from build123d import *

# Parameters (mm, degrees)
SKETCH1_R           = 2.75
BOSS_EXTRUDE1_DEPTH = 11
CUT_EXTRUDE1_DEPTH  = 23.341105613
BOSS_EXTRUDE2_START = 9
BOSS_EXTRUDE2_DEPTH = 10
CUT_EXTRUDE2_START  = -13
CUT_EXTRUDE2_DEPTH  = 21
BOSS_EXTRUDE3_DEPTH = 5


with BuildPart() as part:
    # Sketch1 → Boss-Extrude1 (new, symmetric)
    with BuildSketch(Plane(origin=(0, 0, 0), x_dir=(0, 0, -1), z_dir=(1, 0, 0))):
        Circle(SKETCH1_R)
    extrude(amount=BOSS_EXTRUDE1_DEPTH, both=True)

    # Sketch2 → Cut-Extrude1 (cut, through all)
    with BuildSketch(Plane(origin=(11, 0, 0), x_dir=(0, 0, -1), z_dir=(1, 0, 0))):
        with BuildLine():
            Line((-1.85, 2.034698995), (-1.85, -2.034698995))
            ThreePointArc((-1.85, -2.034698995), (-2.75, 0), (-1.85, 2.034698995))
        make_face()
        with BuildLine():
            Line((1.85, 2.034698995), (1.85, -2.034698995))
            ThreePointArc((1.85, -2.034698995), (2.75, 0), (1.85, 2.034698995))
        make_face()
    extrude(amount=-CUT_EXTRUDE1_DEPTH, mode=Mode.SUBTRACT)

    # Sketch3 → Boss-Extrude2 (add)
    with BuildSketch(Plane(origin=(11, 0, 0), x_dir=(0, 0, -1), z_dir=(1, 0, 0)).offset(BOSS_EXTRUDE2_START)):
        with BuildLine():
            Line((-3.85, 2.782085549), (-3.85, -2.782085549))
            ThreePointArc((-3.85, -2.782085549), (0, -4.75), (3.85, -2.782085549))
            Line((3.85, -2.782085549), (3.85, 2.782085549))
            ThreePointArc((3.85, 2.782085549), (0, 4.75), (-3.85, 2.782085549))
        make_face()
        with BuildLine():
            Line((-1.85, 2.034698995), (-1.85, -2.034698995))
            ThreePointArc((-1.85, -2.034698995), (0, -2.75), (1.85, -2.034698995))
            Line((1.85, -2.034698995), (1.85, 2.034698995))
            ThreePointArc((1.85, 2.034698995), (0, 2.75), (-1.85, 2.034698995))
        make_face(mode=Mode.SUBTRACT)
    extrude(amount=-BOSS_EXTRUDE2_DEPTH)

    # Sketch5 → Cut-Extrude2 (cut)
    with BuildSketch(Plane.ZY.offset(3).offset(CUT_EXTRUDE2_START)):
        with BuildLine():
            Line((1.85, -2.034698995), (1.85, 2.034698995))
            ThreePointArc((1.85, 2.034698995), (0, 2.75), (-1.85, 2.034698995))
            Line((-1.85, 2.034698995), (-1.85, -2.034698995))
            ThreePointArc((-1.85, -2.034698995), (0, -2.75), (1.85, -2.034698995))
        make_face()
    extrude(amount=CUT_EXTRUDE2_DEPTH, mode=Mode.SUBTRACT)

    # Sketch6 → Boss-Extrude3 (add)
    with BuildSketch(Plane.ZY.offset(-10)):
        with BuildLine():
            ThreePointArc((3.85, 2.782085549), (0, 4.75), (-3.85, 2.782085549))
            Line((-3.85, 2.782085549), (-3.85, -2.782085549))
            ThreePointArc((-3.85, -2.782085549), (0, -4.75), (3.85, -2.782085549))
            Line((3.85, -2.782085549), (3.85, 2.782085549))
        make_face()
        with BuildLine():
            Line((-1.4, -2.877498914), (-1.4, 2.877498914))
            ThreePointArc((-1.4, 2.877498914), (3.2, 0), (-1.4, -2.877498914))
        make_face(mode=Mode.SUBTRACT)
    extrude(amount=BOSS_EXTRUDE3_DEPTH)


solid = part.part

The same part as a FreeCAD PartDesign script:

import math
import FreeCAD as App
import Part
import Sketcher
from FreeCAD import Vector

doc = App.newDocument("Part")
body = doc.addObject("PartDesign::Body", "Body")

# Sketch on YZ plane
sketch1 = body.newObject("Sketcher::SketchObject", "Sketch")
sketch1.AttachmentSupport = (doc.getObject("YZ_Plane"), [""])
sketch1.MapMode = "FlatFace"
sketch1.addGeometry(Part.Circle(Vector(0, 0, 0), Vector(0, 0, 1), 2.8), False)
sketch1.addConstraint([
    Sketcher.Constraint("Coincident", 0, 3, -1, 1),
    Sketcher.Constraint("Diameter", 0, 5.5),
])
pad1 = body.newObject("PartDesign::Pad", "Pad")
pad1.Profile = sketch1
pad1.Length = 22
pad1.Midplane = True

# Sketch on YZ plane
sketch2 = body.newObject("Sketcher::SketchObject", "Sketch001")
sketch2.AttachmentSupport = (doc.getObject("YZ_Plane"), [""])
sketch2.MapMode = "FlatFace"
sketch2.AttachmentOffset = App.Placement(Vector(0, 0, 11), App.Rotation())
sketch2.addGeometry([
    Part.LineSegment(Vector(-2, 1.9, 0), Vector(2, 1.9, 0)),
    Part.ArcOfCircle(Part.Circle(Vector(0, 0, 0), Vector(0, 0, 1), 2.8), math.radians(42), math.radians(138)),
    Part.LineSegment(Vector(2, -1.9, 0), Vector(-2, -1.9, 0)),
    Part.ArcOfCircle(Part.Circle(Vector(0, 0, 0), Vector(0, 0, 1), 2.8), math.radians(-138), math.radians(-42)),
], False)
sketch2.addConstraint([
    Sketcher.Constraint("Coincident", 0, 1, 1, 2),
    Sketcher.Constraint("Coincident", 1, 1, 0, 2),
    Sketcher.Constraint("Coincident", 2, 1, 3, 2),
    Sketcher.Constraint("Coincident", 3, 1, 2, 2),
    Sketcher.Constraint("Horizontal", 0),
    Sketcher.Constraint("Horizontal", 2),
    Sketcher.Constraint("Coincident", 1, 3, -1, 1),
    Sketcher.Constraint("Coincident", 3, 3, -1, 1),
    Sketcher.Constraint("Equal", 1, 3),
    Sketcher.Constraint("Vertical", 1, 1, 2, 1),
    Sketcher.Constraint("Radius", 1, 2.75),
    Sketcher.Constraint("DistanceY", 2, 1, 1, 1, 3.7),
])
pocket1 = body.newObject("PartDesign::Pocket", "Pocket")
pocket1.Profile = sketch2
pocket1.Type = "ThroughAll"

# Sketch on YZ plane
sketch3 = body.newObject("Sketcher::SketchObject", "Sketch002")
sketch3.AttachmentSupport = (doc.getObject("YZ_Plane"), [""])
sketch3.MapMode = "FlatFace"
sketch3.AttachmentOffset = App.Placement(Vector(0, 0, 20), App.Rotation())
sketch3.addGeometry([
    Part.LineSegment(Vector(2.8, 3.9, 0), Vector(-2.8, 3.9, 0)),  # 0
    Part.ArcOfCircle(Part.Circle(Vector(0, 0, 0), Vector(0, 0, 1), 4.8), math.radians(126), math.radians(234)),  # 1
    Part.LineSegment(Vector(-2.8, -3.9, 0), Vector(2.8, -3.9, 0)),  # 2
    Part.ArcOfCircle(Part.Circle(Vector(0, 0, 0), Vector(0, 0, 1), 4.8), math.radians(-54), math.radians(54)),  # 3
    Part.LineSegment(Vector(-2, 1.9, 0), Vector(2, 1.9, 0)),  # 4
    Part.ArcOfCircle(Part.Circle(Vector(0, 0, 0), Vector(0, 0, 1), 2.8), math.radians(-42), math.radians(42)),  # 5
    Part.LineSegment(Vector(2, -1.9, 0), Vector(-2, -1.9, 0)),  # 6
    Part.ArcOfCircle(Part.Circle(Vector(0, 0, 0), Vector(0, 0, 1), 2.8), math.radians(138), math.radians(222)),  # 7
], False)
sketch3.addConstraint([
    Sketcher.Constraint("Coincident", 0, 2, 1, 1),
    Sketcher.Constraint("Coincident", 1, 2, 2, 1),
    Sketcher.Constraint("Coincident", 2, 2, 3, 1),
    Sketcher.Constraint("Coincident", 3, 2, 0, 1),
    Sketcher.Constraint("Coincident", 4, 2, 5, 2),
    Sketcher.Constraint("Coincident", 5, 1, 6, 1),
    Sketcher.Constraint("Coincident", 6, 2, 7, 2),
    Sketcher.Constraint("Coincident", 7, 1, 4, 1),
    Sketcher.Constraint("Horizontal", 0),
    Sketcher.Constraint("Horizontal", 2),
    Sketcher.Constraint("Horizontal", 4),
    Sketcher.Constraint("Horizontal", 6),
    Sketcher.Constraint("Coincident", 1, 3, -1, 1),
    Sketcher.Constraint("Coincident", 3, 3, -1, 1),
    Sketcher.Constraint("Coincident", 5, 3, -1, 1),
    Sketcher.Constraint("Coincident", 7, 3, -1, 1),
    Sketcher.Constraint("Equal", 1, 3),
    Sketcher.Constraint("Equal", 5, 7),
    Sketcher.Constraint("Vertical", 0, 2, 1, 2),
    Sketcher.Constraint("Vertical", 4, 2, 5, 1),
    Sketcher.Constraint("Radius", 1, 4.75),
    Sketcher.Constraint("Radius", 5, 2.75),
    Sketcher.Constraint("DistanceY", 4, 2, 3, 2, 2.0),
    Sketcher.Constraint("DistanceY", 1, 2, 0, 2, 7.7),
])
pad2 = body.newObject("PartDesign::Pad", "Pad001")
pad2.Profile = sketch3
pad2.Length = 10
pad2.Reversed = True

# Sketch on YZ plane
sketch4 = body.newObject("Sketcher::SketchObject", "Sketch003")
sketch4.AttachmentSupport = (doc.getObject("YZ_Plane"), [""])
sketch4.MapMode = "FlatFace"
sketch4.AttachmentOffset = App.Placement(Vector(0, 0, 10), App.Rotation())
sketch4.addGeometry([
    Part.LineSegment(Vector(-2, 1.9, 0), Vector(2, 1.9, 0)),
    Part.ArcOfCircle(Part.Circle(Vector(0, 0, 0), Vector(0, 0, 1), 2.8), math.radians(-42), math.radians(42)),
    Part.LineSegment(Vector(2, -1.9, 0), Vector(-2, -1.9, 0)),
    Part.ArcOfCircle(Part.Circle(Vector(0, 0, 0), Vector(0, 0, 1), 2.8), math.radians(138), math.radians(222)),
], False)
sketch4.addConstraint([
    Sketcher.Constraint("Coincident", 0, 2, 1, 2),
    Sketcher.Constraint("Coincident", 1, 1, 2, 1),
    Sketcher.Constraint("Coincident", 2, 2, 3, 2),
    Sketcher.Constraint("Coincident", 3, 1, 0, 1),
    Sketcher.Constraint("Horizontal", 0),
    Sketcher.Constraint("Horizontal", 2),
    Sketcher.Constraint("Coincident", 1, 3, -1, 1),
    Sketcher.Constraint("Coincident", 3, 3, -1, 1),
    Sketcher.Constraint("Equal", 1, 3),
    Sketcher.Constraint("Vertical", 0, 2, 1, 1),
    Sketcher.Constraint("Radius", 1, 2.75),
    Sketcher.Constraint("DistanceY", 1, 1, 0, 2, 3.7),
])
pocket2 = body.newObject("PartDesign::Pocket", "Pocket001")
pocket2.Profile = sketch4
pocket2.Length = 21

# Sketch on YZ plane
sketch5 = body.newObject("Sketcher::SketchObject", "Sketch004")
sketch5.AttachmentSupport = (doc.getObject("YZ_Plane"), [""])
sketch5.MapMode = "FlatFace"
sketch5.AttachmentOffset = App.Placement(Vector(0, 0, 10), App.Rotation())
sketch5.addGeometry([
    Part.ArcOfCircle(Part.Circle(Vector(0, 0, 0), Vector(0, 0, 1), 4.8), math.radians(-54), math.radians(54)),  # 0
    Part.LineSegment(Vector(2.8, -3.9, 0), Vector(-2.8, -3.9, 0)),  # 1
    Part.ArcOfCircle(Part.Circle(Vector(0, 0, 0), Vector(0, 0, 1), 4.8), math.radians(126), math.radians(234)),  # 2
    Part.LineSegment(Vector(-2.8, 3.9, 0), Vector(2.8, 3.9, 0)),  # 3
    Part.ArcOfCircle(Part.Circle(Vector(0, 0, 0), Vector(0, 0, 1), 3.2), math.radians(-26), math.radians(206)),  # 4
    Part.LineSegment(Vector(-2.9, -1.4, 0), Vector(2.9, -1.4, 0)),  # 5
], False)
sketch5.addConstraint([
    Sketcher.Constraint("Coincident", 0, 1, 1, 1),
    Sketcher.Constraint("Coincident", 1, 2, 2, 2),
    Sketcher.Constraint("Coincident", 2, 1, 3, 1),
    Sketcher.Constraint("Coincident", 3, 2, 0, 2),
    Sketcher.Constraint("Coincident", 4, 1, 5, 2),
    Sketcher.Constraint("Coincident", 5, 1, 4, 2),
    Sketcher.Constraint("Horizontal", 1),
    Sketcher.Constraint("Horizontal", 3),
    Sketcher.Constraint("Horizontal", 5),
    Sketcher.Constraint("Coincident", 0, 3, -1, 1),
    Sketcher.Constraint("Coincident", 2, 3, -1, 1),
    Sketcher.Constraint("Coincident", 4, 3, -1, 1),
    Sketcher.Constraint("Equal", 0, 2),
    Sketcher.Constraint("Vertical", 1, 2, 2, 1),
    Sketcher.Constraint("Radius", 4, 3.2),
    Sketcher.Constraint("Radius", 0, 4.75),
    Sketcher.Constraint("DistanceY", 4, 1, -1, 1, 1.4),
    Sketcher.Constraint("DistanceY", 1, 2, 2, 1, 7.7),
])
pad3 = body.newObject("PartDesign::Pad", "Pad002")
pad3.Profile = sketch5
pad3.Length = 5
pad3.Reversed = True

doc.recompute()
